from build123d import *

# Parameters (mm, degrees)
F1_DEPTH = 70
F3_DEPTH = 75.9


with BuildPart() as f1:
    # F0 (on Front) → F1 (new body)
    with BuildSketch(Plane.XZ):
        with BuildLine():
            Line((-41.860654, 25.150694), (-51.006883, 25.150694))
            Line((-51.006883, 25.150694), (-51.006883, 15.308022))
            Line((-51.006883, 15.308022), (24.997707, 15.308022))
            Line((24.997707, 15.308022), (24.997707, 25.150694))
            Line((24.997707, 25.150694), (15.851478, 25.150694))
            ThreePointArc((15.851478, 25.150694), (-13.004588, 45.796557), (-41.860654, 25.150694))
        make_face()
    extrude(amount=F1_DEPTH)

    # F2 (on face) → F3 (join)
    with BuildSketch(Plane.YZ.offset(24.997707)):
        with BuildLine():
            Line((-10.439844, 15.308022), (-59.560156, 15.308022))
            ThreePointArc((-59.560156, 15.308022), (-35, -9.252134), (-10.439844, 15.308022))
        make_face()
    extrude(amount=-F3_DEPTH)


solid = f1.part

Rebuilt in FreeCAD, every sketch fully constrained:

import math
import FreeCAD as App
import Part
import Sketcher
from FreeCAD import Vector

doc = App.newDocument("Part")
body = doc.addObject("PartDesign::Body", "Body")

sketch1 = body.newObject("Sketcher::SketchObject", "Sketch")
sketch1.AttachmentSupport = (doc.getObject("XZ_Plane"), [""])
sketch1.MapMode = "FlatFace"
sketch1.addGeometry(Part.LineSegment(Vector(-41.860654, 25.150694, 0), Vector(-51.006883, 25.150694, 0)), False)
sketch1.addGeometry(Part.LineSegment(Vector(-51.006883, 25.150694, 0), Vector(-51.006883, 15.308022, 0)), False)
sketch1.addGeometry(Part.LineSegment(Vector(-51.006883, 15.308022, 0), Vector(24.997707, 15.308022, 0)), False)
sketch1.addGeometry(Part.LineSegment(Vector(24.997707, 15.308022, 0), Vector(24.997707, 25.150694, 0)), False)
sketch1.addGeometry(Part.LineSegment(Vector(24.997707, 25.150694, 0), Vector(15.851478, 25.150694, 0)), False)
sketch1.addGeometry(Part.ArcOfCircle(Part.Circle(Vector(-13.004588, 15.308023, 0), Vector(0, 0, 1), 30.488534), math.radians(18.834273), math.radians(161.165727)), False)
sketch1.addConstraint(Sketcher.Constraint("Coincident", 0, 2, 1, 1))
sketch1.addConstraint(Sketcher.Constraint("Coincident", 1, 2, 2, 1))
sketch1.addConstraint(Sketcher.Constraint("Coincident", 2, 2, 3, 1))
sketch1.addConstraint(Sketcher.Constraint("Coincident", 3, 2, 4, 1))
sketch1.addConstraint(Sketcher.Constraint("Coincident", 4, 2, 5, 1))
sketch1.addConstraint(Sketcher.Constraint("Coincident", 5, 2, 0, 1))
sketch1.addConstraint(Sketcher.Constraint("Horizontal", 0))
sketch1.addConstraint(Sketcher.Constraint("Vertical", 1))
sketch1.addConstraint(Sketcher.Constraint("Horizontal", 2))
sketch1.addConstraint(Sketcher.Constraint("Vertical", 3))
sketch1.addConstraint(Sketcher.Constraint("Horizontal", 4))
sketch1.addConstraint(Sketcher.Constraint("Horizontal", 5, 3, 1, 2))
sketch1.addConstraint(Sketcher.Constraint("Horizontal", 0, 2, 3, 2))
sketch1.addConstraint(Sketcher.Constraint("Equal", 0, 4))
sketch1.addConstraint(Sketcher.Constraint("Radius", 5, 30.488534))
sketch1.addConstraint(Sketcher.Constraint("DistanceX", 0, 2, 0, 1, 9.146229))
sketch1.addConstraint(Sketcher.Constraint("DistanceX", 2, 1, 2, 2, 76.00459))
sketch1.addConstraint(Sketcher.Constraint("DistanceY", -1, 1, 1, 2, 15.308022))
sketch1.addConstraint(Sketcher.Constraint("DistanceX", 5, 3, -1, 1, 13.004588))
pad1 = body.newObject("PartDesign::Pad", "Pad")
pad1.Profile = sketch1
pad1.Length = 70

sketch2 = body.newObject("Sketcher::SketchObject", "Sketch001")
sketch2.AttachmentSupport = (doc.getObject("YZ_Plane"), [""])
sketch2.MapMode = "FlatFace"
sketch2.AttachmentOffset = App.Placement(Vector(0, 0, 24.997707), App.Rotation())
sketch2.addGeometry(Part.LineSegment(Vector(-10.439844, 15.308022, 0), Vector(-59.560156, 15.308022, 0)), False)
sketch2.addGeometry(Part.ArcOfCircle(Part.Circle(Vector(-35, 15.308022, 0), Vector(0, 0, 1), 24.560156), math.radians(180), math.radians(360)), False)
sketch2.addConstraint(Sketcher.Constraint("Coincident", 0, 1, 1, 2))
sketch2.addConstraint(Sketcher.Constraint("Coincident", 1, 1, 0, 2))
sketch2.addConstraint(Sketcher.Constraint("Horizontal", 0))
sketch2.addConstraint(Sketcher.Constraint("Horizontal", 1, 3, 0, 1))
sketch2.addConstraint(Sketcher.Constraint("DistanceX", 1, 3, -1, 1, 35.0))
sketch2.addConstraint(Sketcher.Constraint("Radius", 1, 24.560156))
sketch2.addConstraint(Sketcher.Constraint("DistanceY", -1, 1, 1, 3, 15.308022))
pad2 = body.newObject("PartDesign::Pad", "Pad001")
pad2.Profile = sketch2
pad2.Length = 75.9
pad2.Reversed = True

doc.recompute()
